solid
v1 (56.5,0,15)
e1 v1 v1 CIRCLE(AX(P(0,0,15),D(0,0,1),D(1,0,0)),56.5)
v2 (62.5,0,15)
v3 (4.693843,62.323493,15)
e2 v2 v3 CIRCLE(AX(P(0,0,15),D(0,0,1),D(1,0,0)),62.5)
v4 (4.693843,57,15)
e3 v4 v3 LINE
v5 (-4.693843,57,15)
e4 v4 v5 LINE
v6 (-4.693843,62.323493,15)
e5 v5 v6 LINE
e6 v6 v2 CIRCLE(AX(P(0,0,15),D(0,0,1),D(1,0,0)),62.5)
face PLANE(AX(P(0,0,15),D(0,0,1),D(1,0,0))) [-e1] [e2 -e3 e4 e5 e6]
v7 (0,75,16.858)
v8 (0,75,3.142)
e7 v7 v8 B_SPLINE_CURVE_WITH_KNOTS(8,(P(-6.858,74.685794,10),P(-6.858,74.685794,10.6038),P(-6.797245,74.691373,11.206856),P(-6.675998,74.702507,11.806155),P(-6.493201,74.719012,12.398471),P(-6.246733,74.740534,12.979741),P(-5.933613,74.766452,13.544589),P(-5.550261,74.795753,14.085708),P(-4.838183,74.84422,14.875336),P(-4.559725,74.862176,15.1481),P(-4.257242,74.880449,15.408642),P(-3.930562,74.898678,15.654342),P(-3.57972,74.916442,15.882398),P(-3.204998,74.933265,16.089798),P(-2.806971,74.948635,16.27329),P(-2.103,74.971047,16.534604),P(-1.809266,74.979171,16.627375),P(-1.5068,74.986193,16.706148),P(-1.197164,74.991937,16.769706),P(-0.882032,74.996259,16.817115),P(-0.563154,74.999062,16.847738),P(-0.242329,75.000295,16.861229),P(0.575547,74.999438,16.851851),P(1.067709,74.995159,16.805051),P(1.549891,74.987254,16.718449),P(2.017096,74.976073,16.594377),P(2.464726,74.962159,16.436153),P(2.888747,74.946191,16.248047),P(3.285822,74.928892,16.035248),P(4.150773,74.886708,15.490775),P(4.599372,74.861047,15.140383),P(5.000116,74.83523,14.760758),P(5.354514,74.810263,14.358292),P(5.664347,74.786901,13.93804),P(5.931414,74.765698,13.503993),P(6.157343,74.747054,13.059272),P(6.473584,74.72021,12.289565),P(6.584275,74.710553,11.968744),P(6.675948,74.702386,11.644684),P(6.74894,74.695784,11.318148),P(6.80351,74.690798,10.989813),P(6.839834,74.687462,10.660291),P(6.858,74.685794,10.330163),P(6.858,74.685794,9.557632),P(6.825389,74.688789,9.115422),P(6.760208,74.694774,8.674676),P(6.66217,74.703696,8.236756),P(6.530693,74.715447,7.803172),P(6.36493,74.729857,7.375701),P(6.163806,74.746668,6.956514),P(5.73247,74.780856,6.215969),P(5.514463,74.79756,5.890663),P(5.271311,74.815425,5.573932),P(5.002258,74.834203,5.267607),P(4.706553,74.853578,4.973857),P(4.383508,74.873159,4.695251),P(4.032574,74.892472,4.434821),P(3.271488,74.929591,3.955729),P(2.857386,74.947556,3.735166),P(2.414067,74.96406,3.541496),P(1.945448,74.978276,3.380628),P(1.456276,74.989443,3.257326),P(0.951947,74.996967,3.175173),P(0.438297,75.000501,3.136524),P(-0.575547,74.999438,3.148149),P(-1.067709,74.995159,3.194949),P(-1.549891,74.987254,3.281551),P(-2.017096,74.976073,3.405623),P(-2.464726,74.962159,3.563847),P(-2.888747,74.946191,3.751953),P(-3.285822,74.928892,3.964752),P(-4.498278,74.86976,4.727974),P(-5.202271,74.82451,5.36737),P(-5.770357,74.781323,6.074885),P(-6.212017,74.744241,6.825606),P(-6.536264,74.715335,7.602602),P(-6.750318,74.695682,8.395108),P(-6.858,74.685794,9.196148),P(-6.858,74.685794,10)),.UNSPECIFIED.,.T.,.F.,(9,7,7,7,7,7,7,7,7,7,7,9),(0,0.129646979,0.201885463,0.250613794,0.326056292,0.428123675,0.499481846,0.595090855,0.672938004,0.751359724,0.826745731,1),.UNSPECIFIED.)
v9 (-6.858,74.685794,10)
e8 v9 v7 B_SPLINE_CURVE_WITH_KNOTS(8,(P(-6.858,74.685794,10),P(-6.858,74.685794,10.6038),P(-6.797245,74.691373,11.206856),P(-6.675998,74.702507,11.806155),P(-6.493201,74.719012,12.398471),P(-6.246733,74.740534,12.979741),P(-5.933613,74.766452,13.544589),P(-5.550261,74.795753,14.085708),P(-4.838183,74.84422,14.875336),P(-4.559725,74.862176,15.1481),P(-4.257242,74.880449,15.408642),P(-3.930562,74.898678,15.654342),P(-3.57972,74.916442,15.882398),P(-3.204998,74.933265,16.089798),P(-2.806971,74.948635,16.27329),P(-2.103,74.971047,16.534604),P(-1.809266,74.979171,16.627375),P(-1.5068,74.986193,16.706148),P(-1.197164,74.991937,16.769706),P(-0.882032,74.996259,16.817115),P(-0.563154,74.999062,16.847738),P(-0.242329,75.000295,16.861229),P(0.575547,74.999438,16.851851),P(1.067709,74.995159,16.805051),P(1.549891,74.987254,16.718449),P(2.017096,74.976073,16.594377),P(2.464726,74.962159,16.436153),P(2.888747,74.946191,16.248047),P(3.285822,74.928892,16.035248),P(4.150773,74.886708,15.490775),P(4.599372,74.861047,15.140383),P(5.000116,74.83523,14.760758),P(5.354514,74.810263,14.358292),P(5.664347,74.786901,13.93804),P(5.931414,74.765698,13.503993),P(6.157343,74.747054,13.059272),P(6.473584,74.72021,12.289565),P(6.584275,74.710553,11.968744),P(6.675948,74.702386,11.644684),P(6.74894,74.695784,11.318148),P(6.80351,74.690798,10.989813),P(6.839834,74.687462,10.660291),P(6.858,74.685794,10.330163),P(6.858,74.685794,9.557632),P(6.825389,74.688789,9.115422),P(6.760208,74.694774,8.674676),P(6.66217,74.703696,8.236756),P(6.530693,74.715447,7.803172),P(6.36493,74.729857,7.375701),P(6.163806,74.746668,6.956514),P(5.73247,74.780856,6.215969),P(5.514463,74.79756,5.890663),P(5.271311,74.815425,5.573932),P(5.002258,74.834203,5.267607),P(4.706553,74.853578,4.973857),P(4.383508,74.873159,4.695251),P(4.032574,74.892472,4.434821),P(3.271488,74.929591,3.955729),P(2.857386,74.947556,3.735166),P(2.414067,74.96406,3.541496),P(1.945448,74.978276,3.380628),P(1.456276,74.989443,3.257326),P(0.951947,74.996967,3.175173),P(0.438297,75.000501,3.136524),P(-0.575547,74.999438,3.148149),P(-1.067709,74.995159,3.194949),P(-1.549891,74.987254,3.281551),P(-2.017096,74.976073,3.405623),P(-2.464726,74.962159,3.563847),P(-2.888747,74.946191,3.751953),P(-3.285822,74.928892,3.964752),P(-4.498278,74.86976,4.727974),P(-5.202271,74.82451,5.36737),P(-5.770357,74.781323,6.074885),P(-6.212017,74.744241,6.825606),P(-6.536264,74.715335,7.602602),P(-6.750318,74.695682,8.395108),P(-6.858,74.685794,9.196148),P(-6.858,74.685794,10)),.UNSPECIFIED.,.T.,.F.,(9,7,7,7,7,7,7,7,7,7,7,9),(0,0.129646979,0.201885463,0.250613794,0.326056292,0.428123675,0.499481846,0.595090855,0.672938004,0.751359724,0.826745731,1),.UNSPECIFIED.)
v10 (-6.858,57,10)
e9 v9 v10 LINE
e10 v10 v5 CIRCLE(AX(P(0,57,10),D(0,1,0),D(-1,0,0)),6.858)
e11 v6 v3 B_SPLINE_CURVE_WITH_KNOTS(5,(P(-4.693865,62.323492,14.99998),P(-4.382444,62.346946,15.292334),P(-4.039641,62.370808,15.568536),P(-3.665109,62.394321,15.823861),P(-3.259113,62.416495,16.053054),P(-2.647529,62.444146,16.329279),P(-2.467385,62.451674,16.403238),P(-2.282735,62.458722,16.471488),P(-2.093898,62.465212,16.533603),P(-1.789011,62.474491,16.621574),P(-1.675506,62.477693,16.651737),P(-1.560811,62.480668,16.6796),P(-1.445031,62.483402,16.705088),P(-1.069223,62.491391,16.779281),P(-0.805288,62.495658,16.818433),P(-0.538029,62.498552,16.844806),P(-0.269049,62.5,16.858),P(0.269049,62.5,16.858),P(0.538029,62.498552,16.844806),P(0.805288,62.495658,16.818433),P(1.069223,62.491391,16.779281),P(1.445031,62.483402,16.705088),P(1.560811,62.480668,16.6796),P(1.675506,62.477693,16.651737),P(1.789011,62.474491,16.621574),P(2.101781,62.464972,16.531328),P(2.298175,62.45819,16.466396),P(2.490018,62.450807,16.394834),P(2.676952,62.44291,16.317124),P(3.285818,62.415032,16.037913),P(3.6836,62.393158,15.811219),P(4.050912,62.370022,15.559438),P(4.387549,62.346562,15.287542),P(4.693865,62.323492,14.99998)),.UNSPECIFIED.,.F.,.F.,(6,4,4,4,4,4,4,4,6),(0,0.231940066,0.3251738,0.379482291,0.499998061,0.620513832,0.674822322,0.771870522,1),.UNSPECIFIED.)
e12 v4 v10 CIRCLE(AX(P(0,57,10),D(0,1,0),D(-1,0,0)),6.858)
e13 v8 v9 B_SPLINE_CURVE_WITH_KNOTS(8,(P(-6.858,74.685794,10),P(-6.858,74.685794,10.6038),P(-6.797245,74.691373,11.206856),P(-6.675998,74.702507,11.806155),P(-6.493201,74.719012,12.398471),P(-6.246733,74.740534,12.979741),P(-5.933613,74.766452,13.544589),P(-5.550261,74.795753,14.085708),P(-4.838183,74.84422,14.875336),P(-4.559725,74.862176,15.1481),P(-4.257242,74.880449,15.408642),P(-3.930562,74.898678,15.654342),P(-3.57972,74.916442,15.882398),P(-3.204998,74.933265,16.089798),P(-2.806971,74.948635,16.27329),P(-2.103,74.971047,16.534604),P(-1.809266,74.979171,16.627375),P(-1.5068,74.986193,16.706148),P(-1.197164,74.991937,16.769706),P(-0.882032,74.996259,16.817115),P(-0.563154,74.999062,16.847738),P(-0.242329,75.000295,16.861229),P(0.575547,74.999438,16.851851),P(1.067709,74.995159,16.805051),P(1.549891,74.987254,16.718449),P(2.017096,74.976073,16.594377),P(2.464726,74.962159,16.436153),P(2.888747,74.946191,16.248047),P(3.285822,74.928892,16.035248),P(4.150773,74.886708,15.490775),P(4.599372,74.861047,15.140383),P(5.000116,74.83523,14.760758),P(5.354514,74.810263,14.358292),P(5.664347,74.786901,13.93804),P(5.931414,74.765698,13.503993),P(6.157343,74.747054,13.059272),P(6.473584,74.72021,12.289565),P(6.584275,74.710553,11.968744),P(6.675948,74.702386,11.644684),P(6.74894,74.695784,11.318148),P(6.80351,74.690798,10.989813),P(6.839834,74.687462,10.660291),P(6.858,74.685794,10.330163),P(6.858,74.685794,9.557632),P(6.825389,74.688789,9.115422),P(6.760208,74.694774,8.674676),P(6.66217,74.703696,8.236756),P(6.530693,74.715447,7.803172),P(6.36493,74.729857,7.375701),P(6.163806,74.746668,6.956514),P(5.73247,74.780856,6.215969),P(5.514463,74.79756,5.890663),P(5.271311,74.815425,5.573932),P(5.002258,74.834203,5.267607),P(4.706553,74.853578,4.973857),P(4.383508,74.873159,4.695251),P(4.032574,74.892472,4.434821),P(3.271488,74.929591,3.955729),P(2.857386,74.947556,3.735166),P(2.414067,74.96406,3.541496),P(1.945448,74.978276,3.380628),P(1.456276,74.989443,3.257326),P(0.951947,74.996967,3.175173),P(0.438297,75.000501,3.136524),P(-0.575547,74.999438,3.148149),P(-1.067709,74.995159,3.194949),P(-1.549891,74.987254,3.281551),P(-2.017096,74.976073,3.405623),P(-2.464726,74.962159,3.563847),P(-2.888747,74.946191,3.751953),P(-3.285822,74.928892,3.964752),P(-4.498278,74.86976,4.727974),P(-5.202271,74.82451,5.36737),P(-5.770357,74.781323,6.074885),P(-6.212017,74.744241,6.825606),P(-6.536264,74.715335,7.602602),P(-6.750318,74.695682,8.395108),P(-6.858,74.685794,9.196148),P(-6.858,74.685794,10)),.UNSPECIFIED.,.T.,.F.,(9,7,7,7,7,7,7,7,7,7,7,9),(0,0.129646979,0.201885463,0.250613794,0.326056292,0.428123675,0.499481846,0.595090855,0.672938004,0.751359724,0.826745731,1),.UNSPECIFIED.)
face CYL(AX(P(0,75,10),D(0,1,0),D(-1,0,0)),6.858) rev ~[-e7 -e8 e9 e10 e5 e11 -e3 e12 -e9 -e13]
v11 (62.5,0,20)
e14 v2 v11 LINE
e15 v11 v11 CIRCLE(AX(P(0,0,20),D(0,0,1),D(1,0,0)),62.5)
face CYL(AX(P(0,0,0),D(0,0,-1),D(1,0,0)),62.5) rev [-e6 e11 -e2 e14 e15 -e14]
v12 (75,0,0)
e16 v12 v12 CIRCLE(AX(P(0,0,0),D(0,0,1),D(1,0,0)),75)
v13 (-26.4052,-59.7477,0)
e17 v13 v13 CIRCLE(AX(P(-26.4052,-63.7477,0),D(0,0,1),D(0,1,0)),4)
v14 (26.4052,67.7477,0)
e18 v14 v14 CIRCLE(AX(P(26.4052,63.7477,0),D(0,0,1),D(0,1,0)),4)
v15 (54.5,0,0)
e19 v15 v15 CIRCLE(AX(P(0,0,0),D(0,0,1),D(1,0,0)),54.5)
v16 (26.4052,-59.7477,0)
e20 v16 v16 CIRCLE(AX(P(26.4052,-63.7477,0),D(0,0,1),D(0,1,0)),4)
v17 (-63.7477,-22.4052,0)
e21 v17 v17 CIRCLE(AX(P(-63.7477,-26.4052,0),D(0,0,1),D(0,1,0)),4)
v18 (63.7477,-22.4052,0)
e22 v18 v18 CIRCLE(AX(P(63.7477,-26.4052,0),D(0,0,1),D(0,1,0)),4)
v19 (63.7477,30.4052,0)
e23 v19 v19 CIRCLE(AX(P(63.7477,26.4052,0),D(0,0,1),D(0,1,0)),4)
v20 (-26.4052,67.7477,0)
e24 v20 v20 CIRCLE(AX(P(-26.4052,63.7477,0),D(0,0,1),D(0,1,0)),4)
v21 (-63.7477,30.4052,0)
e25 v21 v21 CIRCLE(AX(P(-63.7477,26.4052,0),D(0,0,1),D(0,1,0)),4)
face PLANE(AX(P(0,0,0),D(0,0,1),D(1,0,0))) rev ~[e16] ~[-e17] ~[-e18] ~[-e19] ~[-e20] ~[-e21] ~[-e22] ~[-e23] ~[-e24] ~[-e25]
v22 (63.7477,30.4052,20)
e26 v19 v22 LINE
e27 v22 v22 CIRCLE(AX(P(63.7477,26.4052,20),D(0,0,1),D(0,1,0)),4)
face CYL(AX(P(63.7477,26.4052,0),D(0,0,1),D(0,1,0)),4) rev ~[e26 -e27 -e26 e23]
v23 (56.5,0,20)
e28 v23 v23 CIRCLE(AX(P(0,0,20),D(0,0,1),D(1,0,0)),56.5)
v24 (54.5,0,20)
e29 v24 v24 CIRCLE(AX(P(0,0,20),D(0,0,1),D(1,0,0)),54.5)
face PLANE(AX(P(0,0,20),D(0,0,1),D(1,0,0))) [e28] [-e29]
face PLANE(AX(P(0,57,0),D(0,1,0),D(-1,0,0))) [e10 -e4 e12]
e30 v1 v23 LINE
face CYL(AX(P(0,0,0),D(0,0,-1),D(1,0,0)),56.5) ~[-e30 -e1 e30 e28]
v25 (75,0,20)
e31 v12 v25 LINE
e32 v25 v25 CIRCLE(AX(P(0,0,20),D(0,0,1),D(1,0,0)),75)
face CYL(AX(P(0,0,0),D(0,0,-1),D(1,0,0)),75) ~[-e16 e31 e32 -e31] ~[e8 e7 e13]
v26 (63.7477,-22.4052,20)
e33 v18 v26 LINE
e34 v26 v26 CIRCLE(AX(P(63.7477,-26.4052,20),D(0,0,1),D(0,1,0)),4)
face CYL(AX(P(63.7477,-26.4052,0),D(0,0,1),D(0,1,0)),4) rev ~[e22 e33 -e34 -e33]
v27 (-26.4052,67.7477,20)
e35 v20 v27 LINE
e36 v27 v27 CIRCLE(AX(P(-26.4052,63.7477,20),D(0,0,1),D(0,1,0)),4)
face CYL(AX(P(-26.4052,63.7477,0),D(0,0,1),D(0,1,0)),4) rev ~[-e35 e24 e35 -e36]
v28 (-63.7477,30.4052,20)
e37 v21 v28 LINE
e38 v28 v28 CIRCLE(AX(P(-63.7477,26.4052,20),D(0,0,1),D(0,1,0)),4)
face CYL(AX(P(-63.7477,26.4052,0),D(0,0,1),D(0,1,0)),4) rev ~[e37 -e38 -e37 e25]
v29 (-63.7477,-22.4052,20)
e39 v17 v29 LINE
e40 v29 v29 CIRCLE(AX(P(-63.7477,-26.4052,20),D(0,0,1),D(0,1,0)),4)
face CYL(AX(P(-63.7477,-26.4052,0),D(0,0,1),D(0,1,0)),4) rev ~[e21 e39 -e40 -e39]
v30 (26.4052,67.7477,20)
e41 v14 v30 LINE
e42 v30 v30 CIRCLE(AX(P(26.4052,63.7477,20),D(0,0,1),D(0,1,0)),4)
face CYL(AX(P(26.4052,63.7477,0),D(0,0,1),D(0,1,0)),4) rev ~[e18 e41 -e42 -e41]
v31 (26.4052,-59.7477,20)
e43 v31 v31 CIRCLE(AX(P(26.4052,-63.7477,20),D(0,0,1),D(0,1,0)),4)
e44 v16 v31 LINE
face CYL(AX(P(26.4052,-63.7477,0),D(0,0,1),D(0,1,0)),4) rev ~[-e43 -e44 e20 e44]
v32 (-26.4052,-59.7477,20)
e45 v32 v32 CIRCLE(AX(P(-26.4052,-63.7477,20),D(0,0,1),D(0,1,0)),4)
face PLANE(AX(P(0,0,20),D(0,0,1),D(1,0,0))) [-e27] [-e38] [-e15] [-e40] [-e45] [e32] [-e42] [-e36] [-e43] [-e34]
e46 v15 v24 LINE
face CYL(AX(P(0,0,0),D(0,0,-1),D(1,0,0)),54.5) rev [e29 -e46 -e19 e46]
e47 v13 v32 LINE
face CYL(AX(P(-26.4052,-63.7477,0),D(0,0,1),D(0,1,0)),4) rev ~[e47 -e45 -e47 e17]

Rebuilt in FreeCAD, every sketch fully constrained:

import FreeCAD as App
import Part
import Sketcher
from FreeCAD import Vector
Q = App.Units.Quantity

doc = App.newDocument("Part")
body = doc.addObject("PartDesign::Body", "Body")

sketch1 = body.newObject("Sketcher::SketchObject", "Sketch")
sketch1.AttachmentSupport = (doc.getObject("XY_Plane"), [""])
sketch1.MapMode = "FlatFace"
sketch1.addGeometry([
    Part.Circle(Vector(0, 0, 0), Vector(0, 0, 1), 56.5),
    Part.Circle(Vector(0, 0, 0), Vector(0, 0, 1), 54.5),
], False)
sketch1.addConstraint([
    Sketcher.Constraint("Coincident", 0, 3, -1, 1),
    Sketcher.Constraint("Coincident", 1, 3, -1, 1),
    Sketcher.Constraint("Diameter", 0, Q("113 mm")),
    Sketcher.Constraint("Diameter", 1, Q("109 mm")),
])
pad1 = body.newObject("PartDesign::Pad", "Pad")
pad1.Profile = sketch1
pad1.Length = 20

sketch2 = body.newObject("Sketcher::SketchObject", "Sketch001")
sketch2.AttachmentSupport = (doc.getObject("XY_Plane"), [""])
sketch2.MapMode = "FlatFace"
sketch2.addGeometry([
    Part.Circle(Vector(0, 0, 0), Vector(0, 0, 1), 62.5),
    Part.Circle(Vector(0, 0, 0), Vector(0, 0, 1), 56.5),
], False)
sketch2.addConstraint([
    Sketcher.Constraint("Coincident", 0, 3, -1, 1),
    Sketcher.Constraint("Coincident", 1, 3, -1, 1),
    Sketcher.Constraint("Diameter", 0, Q("125 mm")),
    Sketcher.Constraint("Diameter", 1, Q("113 mm")),
])
pad2 = body.newObject("PartDesign::Pad", "Pad001")
pad2.Profile = sketch2
pad2.Length = 15

sketch3 = body.newObject("Sketcher::SketchObject", "Sketch002")
sketch3.AttachmentSupport = (doc.getObject("XY_Plane"), [""])
sketch3.MapMode = "FlatFace"
sketch3.addGeometry([
    Part.Circle(Vector(0, 0, 0), Vector(0, 0, 1), 75),
    Part.Circle(Vector(0, 0, 0), Vector(0, 0, 1), 62.5),
], False)
sketch3.addConstraint([
    Sketcher.Constraint("Coincident", 0, 3, -1, 1),
    Sketcher.Constraint("Coincident", 1, 3, -1, 1),
    Sketcher.Constraint("Diameter", 0, Q("150 mm")),
    Sketcher.Constraint("Diameter", 1, Q("125 mm")),
])
pad3 = body.newObject("PartDesign::Pad", "Pad002")
pad3.Profile = sketch3
pad3.Length = 20

sketch4 = body.newObject("Sketcher::SketchObject", "Sketch003")
sketch4.AttachmentSupport = (doc.getObject("XZ_Plane"), [""])
sketch4.MapMode = "FlatFace"
sketch4.AttachmentOffset = App.Placement(Vector(0, 0, -75), App.Rotation())
sketch4.addGeometry(Part.Circle(Vector(0, 10, 0), Vector(0, 0, 1), 6.858), False)
sketch4.addConstraint([
    Sketcher.Constraint("PointOnObject", 0, 3, -2),
    Sketcher.Constraint("Diameter", 0, Q("13.716 mm")),
    Sketcher.Constraint("DistanceY", -1, 1, 0, 3, Q("10 mm")),
])
pocket1 = body.newObject("PartDesign::Pocket", "Pocket")
pocket1.Profile = sketch4
pocket1.Length = 18
pocket1.Reversed = True

sketch5 = body.newObject("Sketcher::SketchObject", "Sketch004")
sketch5.AttachmentSupport = (doc.getObject("XY_Plane"), [""])
sketch5.MapMode = "FlatFace"
sketch5.addGeometry([
    Part.Circle(Vector(26.4052, 63.7477, 0), Vector(0, 0, 1), 4),
    Part.Circle(Vector(63.7477, 26.4052, 0), Vector(0, 0, 1), 4),
    Part.Circle(Vector(63.7477, -26.4052, 0), Vector(0, 0, 1), 4),
    Part.Circle(Vector(26.4052, -63.7477, 0), Vector(0, 0, 1), 4),
    Part.Circle(Vector(-26.4052, -63.7477, 0), Vector(0, 0, 1), 4),
    Part.Circle(Vector(-63.7477, -26.4052, 0), Vector(0, 0, 1), 4),
    Part.Circle(Vector(-26.4052, 63.7477, 0), Vector(0, 0, 1), 4),
    Part.Circle(Vector(-63.7477, 26.4052, 0), Vector(0, 0, 1), 4),
], False)
sketch5.addConstraint([
    Sketcher.Constraint("Equal", 0, 1),
    Sketcher.Constraint("Equal", 1, 2),
    Sketcher.Constraint("Equal", 2, 3),
    Sketcher.Constraint("Equal", 3, 4),
    Sketcher.Constraint("Equal", 4, 5),
    Sketcher.Constraint("Equal", 5, 6),
    Sketcher.Constraint("Equal", 6, 7),
    Sketcher.Constraint("Symmetric", 0, 3, 4, 3, -1, 1),
    Sketcher.Constraint("Symmetric", 1, 3, 5, 3, -1, 1),
    Sketcher.Constraint("Symmetric", 3, 3, 6, 3, -1, 1),
    Sketcher.Constraint("Symmetric", 2, 3, 7, 3, -1, 1),
    Sketcher.Constraint("Symmetric", 3, 3, 4, 3, -2),
    Sketcher.Constraint("Symmetric", 2, 3, 5, 3, -2),
    Sketcher.Constraint("Diameter", 0, Q("8 mm")),
    Sketcher.Constraint("DistanceY", 2, 3, 0, 3, Q("90.153 mm")),
    Sketcher.Constraint("DistanceX", 4, 3, 2, 3, Q("90.153 mm")),
    Sketcher.Constraint("DistanceX", -1, 1, 0, 3, Q("26.4052 mm")),
    Sketcher.Constraint("DistanceY", -1, 1, 0, 3, Q("63.7477 mm")),
])
doc.recompute()
hole = body.newObject("PartDesign::Hole", "Hole")
hole.Profile = sketch5
hole.ThreadType = "None"
hole.Diameter = 8
hole.DepthType = "ThroughAll"
hole.Reversed = True

doc.recompute()
